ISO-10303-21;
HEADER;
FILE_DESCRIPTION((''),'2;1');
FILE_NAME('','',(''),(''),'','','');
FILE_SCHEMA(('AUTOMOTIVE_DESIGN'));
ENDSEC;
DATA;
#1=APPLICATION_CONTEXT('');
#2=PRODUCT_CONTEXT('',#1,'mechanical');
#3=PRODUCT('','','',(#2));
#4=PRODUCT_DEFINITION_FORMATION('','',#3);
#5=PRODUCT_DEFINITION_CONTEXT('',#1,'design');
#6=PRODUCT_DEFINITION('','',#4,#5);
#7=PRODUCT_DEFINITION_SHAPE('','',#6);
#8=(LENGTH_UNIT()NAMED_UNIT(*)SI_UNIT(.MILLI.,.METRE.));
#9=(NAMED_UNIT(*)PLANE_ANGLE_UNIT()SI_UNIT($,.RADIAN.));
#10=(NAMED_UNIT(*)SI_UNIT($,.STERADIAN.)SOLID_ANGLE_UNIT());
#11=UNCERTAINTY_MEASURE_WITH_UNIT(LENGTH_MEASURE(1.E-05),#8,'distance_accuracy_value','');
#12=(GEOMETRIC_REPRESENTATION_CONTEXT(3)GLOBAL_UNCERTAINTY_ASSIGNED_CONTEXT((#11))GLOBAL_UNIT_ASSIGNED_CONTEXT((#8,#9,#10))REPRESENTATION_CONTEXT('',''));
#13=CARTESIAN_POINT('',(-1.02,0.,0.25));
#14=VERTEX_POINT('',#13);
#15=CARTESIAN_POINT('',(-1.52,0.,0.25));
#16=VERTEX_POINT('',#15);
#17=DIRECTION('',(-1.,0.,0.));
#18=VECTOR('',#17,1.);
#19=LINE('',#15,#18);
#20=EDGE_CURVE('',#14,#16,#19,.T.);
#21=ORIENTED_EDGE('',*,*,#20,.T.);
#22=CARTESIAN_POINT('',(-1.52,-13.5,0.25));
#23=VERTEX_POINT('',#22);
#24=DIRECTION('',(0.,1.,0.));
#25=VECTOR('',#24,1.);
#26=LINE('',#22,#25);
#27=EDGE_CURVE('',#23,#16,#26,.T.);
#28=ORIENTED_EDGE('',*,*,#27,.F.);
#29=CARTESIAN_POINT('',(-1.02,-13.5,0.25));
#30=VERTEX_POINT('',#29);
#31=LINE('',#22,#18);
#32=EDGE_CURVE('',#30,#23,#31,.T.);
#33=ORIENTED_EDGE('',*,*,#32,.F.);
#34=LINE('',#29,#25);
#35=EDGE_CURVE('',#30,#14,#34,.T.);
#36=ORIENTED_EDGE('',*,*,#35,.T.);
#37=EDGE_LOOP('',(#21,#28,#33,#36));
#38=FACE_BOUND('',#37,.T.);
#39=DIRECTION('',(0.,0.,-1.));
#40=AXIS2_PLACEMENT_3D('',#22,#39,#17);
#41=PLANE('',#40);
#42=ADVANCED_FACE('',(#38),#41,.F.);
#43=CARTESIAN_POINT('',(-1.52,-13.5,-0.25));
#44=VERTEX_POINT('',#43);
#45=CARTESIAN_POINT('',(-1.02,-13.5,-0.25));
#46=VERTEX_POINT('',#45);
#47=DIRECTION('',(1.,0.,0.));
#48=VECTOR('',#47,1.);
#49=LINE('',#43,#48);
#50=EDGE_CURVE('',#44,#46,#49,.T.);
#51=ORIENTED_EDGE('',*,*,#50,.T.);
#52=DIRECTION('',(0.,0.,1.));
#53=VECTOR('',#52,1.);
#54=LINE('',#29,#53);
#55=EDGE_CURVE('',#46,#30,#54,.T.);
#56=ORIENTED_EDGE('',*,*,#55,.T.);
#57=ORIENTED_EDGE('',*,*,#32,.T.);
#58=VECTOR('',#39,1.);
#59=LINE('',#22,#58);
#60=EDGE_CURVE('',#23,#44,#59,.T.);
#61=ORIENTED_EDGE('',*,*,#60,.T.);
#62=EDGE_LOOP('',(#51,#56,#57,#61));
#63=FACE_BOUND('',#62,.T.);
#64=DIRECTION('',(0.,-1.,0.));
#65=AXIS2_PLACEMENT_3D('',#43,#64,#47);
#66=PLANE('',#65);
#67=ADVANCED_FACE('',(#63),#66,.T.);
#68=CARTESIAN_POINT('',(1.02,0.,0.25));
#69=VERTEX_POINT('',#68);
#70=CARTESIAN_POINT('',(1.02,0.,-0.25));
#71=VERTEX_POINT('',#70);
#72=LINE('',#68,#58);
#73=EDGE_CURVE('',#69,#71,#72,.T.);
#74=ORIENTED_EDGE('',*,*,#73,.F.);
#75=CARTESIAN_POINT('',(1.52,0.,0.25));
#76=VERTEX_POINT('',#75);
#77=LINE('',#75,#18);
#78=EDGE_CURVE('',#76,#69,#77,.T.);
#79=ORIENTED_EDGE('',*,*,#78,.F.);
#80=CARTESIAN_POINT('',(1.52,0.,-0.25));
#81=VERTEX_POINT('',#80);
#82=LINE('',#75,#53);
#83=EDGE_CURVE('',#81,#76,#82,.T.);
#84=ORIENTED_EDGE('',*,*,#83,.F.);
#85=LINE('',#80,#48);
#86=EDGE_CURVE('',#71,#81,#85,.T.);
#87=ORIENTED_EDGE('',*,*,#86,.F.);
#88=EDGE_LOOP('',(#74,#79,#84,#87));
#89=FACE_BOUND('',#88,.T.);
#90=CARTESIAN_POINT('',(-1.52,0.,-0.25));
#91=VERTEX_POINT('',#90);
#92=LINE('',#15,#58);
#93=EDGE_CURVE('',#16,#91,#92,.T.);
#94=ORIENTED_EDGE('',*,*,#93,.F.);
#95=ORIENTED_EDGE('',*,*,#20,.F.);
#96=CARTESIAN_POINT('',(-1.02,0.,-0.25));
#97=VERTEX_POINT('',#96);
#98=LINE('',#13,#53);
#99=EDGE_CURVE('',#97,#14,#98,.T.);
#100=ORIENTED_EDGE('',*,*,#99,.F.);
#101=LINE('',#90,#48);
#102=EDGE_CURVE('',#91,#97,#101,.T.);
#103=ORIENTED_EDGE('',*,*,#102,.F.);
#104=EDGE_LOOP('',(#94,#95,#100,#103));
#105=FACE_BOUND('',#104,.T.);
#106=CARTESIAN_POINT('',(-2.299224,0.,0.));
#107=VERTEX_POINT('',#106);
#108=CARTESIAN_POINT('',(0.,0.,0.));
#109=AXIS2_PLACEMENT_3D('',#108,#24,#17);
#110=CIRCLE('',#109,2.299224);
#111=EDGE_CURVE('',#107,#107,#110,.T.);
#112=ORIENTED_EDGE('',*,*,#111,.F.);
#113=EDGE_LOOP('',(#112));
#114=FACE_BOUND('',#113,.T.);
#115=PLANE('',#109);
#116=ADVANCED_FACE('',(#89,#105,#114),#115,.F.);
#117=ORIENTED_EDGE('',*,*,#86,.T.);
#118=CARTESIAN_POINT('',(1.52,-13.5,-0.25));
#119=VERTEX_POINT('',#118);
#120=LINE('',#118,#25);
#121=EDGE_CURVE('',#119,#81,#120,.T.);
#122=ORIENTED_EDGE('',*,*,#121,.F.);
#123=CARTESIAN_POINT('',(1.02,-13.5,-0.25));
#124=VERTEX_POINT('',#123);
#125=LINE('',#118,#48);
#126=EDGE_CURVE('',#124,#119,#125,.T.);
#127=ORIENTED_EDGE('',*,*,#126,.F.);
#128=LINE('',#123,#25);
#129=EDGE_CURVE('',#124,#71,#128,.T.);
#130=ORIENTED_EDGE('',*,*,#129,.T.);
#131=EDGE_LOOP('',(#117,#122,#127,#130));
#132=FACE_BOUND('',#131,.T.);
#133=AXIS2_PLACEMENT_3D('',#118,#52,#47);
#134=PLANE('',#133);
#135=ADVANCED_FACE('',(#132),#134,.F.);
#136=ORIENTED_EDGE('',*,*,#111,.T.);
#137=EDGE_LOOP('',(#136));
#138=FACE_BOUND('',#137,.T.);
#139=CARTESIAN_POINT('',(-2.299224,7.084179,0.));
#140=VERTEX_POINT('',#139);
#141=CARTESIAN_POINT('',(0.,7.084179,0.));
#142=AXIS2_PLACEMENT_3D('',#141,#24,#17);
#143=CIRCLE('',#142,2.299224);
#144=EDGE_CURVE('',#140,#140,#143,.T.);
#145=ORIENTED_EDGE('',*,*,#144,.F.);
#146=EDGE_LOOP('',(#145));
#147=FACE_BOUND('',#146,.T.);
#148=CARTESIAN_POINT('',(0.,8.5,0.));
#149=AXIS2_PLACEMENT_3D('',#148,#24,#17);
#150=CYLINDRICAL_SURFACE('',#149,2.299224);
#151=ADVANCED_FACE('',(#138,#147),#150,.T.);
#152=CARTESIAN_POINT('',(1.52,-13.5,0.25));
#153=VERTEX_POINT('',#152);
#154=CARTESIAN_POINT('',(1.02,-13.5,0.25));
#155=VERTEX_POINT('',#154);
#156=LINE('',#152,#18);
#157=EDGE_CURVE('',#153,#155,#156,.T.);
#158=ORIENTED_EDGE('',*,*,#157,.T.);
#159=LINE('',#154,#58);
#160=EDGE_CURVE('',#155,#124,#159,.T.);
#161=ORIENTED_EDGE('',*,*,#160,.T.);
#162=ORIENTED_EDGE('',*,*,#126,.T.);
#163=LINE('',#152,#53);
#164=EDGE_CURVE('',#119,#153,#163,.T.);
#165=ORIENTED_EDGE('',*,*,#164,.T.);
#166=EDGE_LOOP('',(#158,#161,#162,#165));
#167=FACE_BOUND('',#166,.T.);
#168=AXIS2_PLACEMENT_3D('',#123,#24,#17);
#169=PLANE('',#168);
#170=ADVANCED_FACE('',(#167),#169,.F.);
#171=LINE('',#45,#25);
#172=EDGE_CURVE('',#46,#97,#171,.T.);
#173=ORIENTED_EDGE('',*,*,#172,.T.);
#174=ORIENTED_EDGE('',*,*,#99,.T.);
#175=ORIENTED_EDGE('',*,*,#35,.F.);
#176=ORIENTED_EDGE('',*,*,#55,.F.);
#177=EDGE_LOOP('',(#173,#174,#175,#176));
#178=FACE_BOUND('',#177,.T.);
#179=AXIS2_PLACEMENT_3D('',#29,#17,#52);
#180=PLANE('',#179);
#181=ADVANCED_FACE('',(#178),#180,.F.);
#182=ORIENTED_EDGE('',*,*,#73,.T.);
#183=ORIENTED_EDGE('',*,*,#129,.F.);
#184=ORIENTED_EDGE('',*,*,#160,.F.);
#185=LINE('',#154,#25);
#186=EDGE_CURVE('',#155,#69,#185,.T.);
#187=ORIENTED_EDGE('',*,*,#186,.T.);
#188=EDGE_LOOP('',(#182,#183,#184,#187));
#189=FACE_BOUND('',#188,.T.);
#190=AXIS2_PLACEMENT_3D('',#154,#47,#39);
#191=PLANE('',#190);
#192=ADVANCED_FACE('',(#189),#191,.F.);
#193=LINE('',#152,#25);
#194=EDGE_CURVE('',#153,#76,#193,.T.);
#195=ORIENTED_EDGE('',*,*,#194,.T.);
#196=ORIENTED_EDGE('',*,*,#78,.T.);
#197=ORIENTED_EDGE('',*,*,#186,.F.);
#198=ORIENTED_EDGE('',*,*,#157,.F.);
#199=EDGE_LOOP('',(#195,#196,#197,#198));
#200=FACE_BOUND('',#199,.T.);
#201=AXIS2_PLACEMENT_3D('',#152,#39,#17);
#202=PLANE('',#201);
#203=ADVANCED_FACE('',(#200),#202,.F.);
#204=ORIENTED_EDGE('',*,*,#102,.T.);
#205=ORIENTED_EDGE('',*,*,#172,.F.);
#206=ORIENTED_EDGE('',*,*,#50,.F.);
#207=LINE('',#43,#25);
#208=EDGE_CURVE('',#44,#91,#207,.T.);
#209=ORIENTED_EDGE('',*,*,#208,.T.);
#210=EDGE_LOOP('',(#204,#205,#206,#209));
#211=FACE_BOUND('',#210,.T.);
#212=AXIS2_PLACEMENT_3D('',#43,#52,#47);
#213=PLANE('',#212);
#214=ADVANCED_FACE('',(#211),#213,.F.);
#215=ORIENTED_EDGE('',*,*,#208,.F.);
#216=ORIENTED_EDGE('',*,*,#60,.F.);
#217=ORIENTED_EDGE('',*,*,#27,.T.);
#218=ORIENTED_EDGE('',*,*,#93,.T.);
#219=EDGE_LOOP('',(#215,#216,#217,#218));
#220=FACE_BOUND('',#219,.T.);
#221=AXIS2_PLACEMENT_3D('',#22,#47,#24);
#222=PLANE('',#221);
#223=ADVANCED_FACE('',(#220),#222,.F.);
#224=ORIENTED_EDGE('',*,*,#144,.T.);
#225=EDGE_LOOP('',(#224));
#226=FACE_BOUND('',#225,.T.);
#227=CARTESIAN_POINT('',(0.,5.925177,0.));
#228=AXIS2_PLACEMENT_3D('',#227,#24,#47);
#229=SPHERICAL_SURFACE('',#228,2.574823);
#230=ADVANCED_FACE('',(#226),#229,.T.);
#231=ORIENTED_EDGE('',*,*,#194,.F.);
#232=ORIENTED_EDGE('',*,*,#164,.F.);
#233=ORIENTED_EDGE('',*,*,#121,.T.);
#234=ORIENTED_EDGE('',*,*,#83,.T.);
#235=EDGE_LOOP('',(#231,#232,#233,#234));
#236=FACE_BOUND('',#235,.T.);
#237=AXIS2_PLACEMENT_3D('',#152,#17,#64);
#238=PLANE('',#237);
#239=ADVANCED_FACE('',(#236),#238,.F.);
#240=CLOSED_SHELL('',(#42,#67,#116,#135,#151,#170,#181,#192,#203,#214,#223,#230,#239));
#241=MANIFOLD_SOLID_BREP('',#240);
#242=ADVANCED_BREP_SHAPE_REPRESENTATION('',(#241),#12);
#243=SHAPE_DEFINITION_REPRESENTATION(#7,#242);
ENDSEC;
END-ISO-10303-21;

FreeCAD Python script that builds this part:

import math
import FreeCAD as App
import Part
import Sketcher

V = App.Vector
Q = App.Units.Quantity

doc = App.newDocument("Part")
body = doc.addObject("PartDesign::Body", "Body")

sketch1 = body.newObject("Sketcher::SketchObject", "Sketch")
sketch1.AttachmentSupport = (doc.getObject("XY_Plane"), [""])
sketch1.MapMode = "FlatFace"
sketch1.addGeometry([
    Part.LineSegment(V(0, 0, 0), V(2.3, 0, 0)),
    Part.LineSegment(V(2.3, 0, 0), V(2.3, 7.1, 0)),
    Part.ArcOfCircle(Part.Circle(V(0, 5.9, 0), V(0, 0, 1), 2.6), math.radians(27), math.radians(90)),
    Part.LineSegment(V(0, 8.5, 0), V(0, 0, 0)),
], False)
sketch1.addConstraint([
    Sketcher.Constraint("Coincident", 0, 2, 1, 1),
    Sketcher.Constraint("Coincident", 1, 2, 2, 1),
    Sketcher.Constraint("Coincident", 2, 2, 3, 1),
    Sketcher.Constraint("Coincident", 3, 2, 0, 1),
    Sketcher.Constraint("Horizontal", 0),
    Sketcher.Constraint("Vertical", 1),
    Sketcher.Constraint("Vertical", 3),
    Sketcher.Constraint("Coincident", 3, 2, -1, 1),
    Sketcher.Constraint("PointOnObject", 2, 3, -2),
    Sketcher.Constraint("DistanceY", 3, 2, 3, 1, Q("8.5 mm")),
    Sketcher.Constraint("Radius", 2, Q("2.574823 mm")),
    Sketcher.Constraint("DistanceY", 2, 3, 1, 2, Q("1.159002 mm")),
])
revolution = body.newObject("PartDesign::Revolution", "Revolution")
revolution.Profile = sketch1
revolution.ReferenceAxis = (sketch1, ["V_Axis"])
revolution.Angle = 360

sketch2 = body.newObject("Sketcher::SketchObject", "Sketch001")
sketch2.AttachmentSupport = (doc.getObject("XZ_Plane"), [""])
sketch2.MapMode = "FlatFace"
sketch2.addGeometry([
    Part.LineSegment(V(1, 0.2, 0), V(1, -0.2, 0)),
    Part.LineSegment(V(1, -0.2, 0), V(1.5, -0.2, 0)),
    Part.LineSegment(V(1.5, -0.2, 0), V(1.5, 0.2, 0)),
    Part.LineSegment(V(1.5, 0.2, 0), V(1, 0.2, 0)),
    Part.LineSegment(V(-1.5, 0.2, 0), V(-1.5, -0.2, 0)),
    Part.LineSegment(V(-1.5, -0.2, 0), V(-1, -0.2, 0)),
    Part.LineSegment(V(-1, -0.2, 0), V(-1, 0.2, 0)),
    Part.LineSegment(V(-1, 0.2, 0), V(-1.5, 0.2, 0)),
], False)
sketch2.addConstraint([
    Sketcher.Constraint("Coincident", 0, 2, 1, 1),
    Sketcher.Constraint("Coincident", 1, 2, 2, 1),
    Sketcher.Constraint("Coincident", 2, 2, 3, 1),
    Sketcher.Constraint("Coincident", 3, 2, 0, 1),
    Sketcher.Constraint("Coincident", 4, 2, 5, 1),
    Sketcher.Constraint("Coincident", 5, 2, 6, 1),
    Sketcher.Constraint("Coincident", 6, 2, 7, 1),
    Sketcher.Constraint("Coincident", 7, 2, 4, 1),
    Sketcher.Constraint("Vertical", 0),
    Sketcher.Constraint("Horizontal", 1),
    Sketcher.Constraint("Vertical", 2),
    Sketcher.Constraint("Horizontal", 3),
    Sketcher.Constraint("Vertical", 4),
    Sketcher.Constraint("Horizontal", 5),
    Sketcher.Constraint("Vertical", 6),
    Sketcher.Constraint("Horizontal", 7),
    Sketcher.Constraint("Symmetric", 2, 2, 4, 2, -1, 1),
    Sketcher.Constraint("Symmetric", 0, 2, 6, 2, -1, 1),
    Sketcher.Constraint("Horizontal", 1, 2, 4, 2),
    Sketcher.Constraint("Equal", 7, 0),
    Sketcher.Constraint("DistanceX", 1, 1, 1, 2, Q("0.5 mm")),
    Sketcher.Constraint("DistanceX", -1, 1, 0, 2, Q("1.02 mm")),
])
pad1 = body.newObject("PartDesign::Pad", "Pad")
pad1.Profile = sketch2
pad1.Length = 13.5

doc.recompute()
